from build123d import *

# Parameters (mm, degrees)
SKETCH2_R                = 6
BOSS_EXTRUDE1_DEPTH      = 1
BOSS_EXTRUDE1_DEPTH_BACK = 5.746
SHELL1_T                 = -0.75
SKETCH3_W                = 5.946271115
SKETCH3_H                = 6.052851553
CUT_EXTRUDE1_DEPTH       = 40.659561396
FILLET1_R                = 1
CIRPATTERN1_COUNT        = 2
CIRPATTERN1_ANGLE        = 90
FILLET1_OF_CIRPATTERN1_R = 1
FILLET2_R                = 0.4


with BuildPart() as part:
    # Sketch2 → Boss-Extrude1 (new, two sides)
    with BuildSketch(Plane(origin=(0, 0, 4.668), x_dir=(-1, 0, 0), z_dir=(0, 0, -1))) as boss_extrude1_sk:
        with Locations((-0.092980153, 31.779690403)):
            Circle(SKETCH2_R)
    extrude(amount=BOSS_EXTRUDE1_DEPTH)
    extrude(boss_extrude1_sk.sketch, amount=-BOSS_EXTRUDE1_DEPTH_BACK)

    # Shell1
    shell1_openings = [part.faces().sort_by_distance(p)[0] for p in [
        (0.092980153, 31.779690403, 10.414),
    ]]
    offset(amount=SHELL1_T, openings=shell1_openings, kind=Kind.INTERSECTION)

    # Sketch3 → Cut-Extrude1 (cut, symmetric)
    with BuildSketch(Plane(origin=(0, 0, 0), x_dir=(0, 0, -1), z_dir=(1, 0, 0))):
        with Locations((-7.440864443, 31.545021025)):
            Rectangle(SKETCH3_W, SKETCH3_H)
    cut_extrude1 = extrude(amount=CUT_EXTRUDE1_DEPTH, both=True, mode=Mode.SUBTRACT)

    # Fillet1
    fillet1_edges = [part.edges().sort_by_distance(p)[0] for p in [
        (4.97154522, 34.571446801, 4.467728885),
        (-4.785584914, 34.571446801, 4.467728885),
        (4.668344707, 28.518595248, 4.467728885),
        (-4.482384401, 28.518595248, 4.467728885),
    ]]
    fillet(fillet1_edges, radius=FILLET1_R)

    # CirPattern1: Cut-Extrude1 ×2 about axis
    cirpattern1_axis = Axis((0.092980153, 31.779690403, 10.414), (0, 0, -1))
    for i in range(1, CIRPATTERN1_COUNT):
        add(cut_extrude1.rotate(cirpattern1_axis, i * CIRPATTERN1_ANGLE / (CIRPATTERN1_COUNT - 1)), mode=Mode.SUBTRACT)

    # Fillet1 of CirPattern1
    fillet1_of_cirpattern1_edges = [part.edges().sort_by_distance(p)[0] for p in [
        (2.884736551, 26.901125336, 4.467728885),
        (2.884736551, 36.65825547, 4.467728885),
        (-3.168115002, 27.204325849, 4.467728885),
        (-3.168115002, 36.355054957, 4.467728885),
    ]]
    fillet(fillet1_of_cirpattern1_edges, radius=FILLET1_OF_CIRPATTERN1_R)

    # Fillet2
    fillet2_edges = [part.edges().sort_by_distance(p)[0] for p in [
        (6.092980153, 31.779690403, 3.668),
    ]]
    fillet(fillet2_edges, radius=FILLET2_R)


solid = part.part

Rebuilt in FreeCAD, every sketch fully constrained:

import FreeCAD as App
import Part
import Sketcher
from FreeCAD import Vector


def edges_at(feature, points):
    """Names of the edges that pass closest to the given points."""
    edges = feature.Shape.Edges
    near = lambda p: min(range(len(edges)), key=lambda i: edges[i].distToShape(Part.Vertex(*p))[0])
    return sorted({f"Edge{near(p) + 1}" for p in points})


def faces_at(feature, points):
    """Names of the faces that lie closest to the given points."""
    faces = feature.Shape.Faces
    near = lambda p: min(range(len(faces)), key=lambda i: faces[i].distToShape(Part.Vertex(*p))[0])
    return sorted({f"Face{near(p) + 1}" for p in points})


def add_polygon(sketch, points):
    """Adds a closed chain of lines whose ends are joined by coincident constraints."""
    first, n = sketch.GeometryCount, len(points)
    for a, b in zip(points, points[1:] + points[:1]):
        sketch.addGeometry(Part.LineSegment(App.Vector(*a, 0), App.Vector(*b, 0)), False)
    for i in range(n):
        sketch.addConstraint(Sketcher.Constraint("Coincident", first + i, 2, first + (i + 1) % n, 1))

doc = App.newDocument("Part")
body = doc.addObject("PartDesign::Body", "Body")

# Sketch on XY plane
sketch1 = doc.addObject("Sketcher::SketchObject", "Sketch")
body.addObject(sketch1)
sketch1.AttachmentSupport = (doc.XY_Plane, [""])
sketch1.MapMode = "FlatFace"
sketch1.AttachmentOffset = App.Placement(Vector(0, 0, 4.668), App.Rotation())
sketch1.addGeometry(Part.Circle(Vector(0, 32, 0), Vector(0, 0, 1), 6), False)
sketch1.addConstraint([
    Sketcher.Constraint("Diameter", 0, 12.0),
    Sketcher.Constraint("DistanceX", -1, 1, 0, 3, 0.09298),
    Sketcher.Constraint("DistanceY", -1, 1, 0, 3, 31.77969),
])
pad1 = doc.addObject("PartDesign::Pad", "Pad")
body.addObject(pad1)
pad1.Profile = sketch1
pad1.Type = "TwoLengths"
pad1.Length = 1
pad1.Length2 = 5.746
pad1.Reversed = True
doc.recompute()

thickness = doc.addObject("PartDesign::Thickness", "Thickness")
body.addObject(thickness)
thickness.Base = (pad1, faces_at(pad1, [(0.093, 31.78, 10.414)]))
thickness.Value = 0.75
thickness.Reversed = True
thickness.Join = "Intersection"

# Sketch on YZ plane
sketch2 = doc.addObject("Sketcher::SketchObject", "Sketch001")
body.addObject(sketch2)
sketch2.AttachmentSupport = (doc.YZ_Plane, [""])
sketch2.MapMode = "FlatFace"
add_polygon(sketch2, [(35, 10), (29, 10), (29, 4), (35, 4)])  # lines 0-3
sketch2.addConstraint([
    Sketcher.Constraint("Horizontal", 0),
    Sketcher.Constraint("Vertical", 1),
    Sketcher.Constraint("Horizontal", 2),
    Sketcher.Constraint("Vertical", 3),
    Sketcher.Constraint("DistanceY", -1, 1, 0, 2, 10.414),
    Sketcher.Constraint("DistanceX", 0, 2, 0, 1, 6.052852),
    Sketcher.Constraint("DistanceY", 1, 2, 1, 1, 5.946271),
    Sketcher.Constraint("DistanceX", -1, 1, 0, 2, 28.518595),
])
pocket1 = doc.addObject("PartDesign::Pocket", "Pocket")
body.addObject(pocket1)
pocket1.Profile = sketch2
pocket1.Length = 81.319123
pocket1.Midplane = True
doc.recompute()

fillet = doc.addObject("PartDesign::Fillet", "Fillet")
body.addObject(fillet)
fillet.Base = (pocket1, edges_at(pocket1, [
    (4.972, 34.571, 4.468),
    (-4.786, 34.571, 4.468),
    (4.668, 28.519, 4.468),
    (-4.482, 28.519, 4.468),
]))
fillet.Radius = 1
doc.recompute()

datumline = doc.addObject("PartDesign::Line", "DatumLine")
body.addObject(datumline)
datumline.Placement = App.Placement(Vector(0.09298, 31.77969, 0), App.Rotation(Vector(0, 0, 1), Vector(0, 0, -1)))
polarpattern = doc.addObject("PartDesign::PolarPattern", "PolarPattern")
body.addObject(polarpattern)
polarpattern.Originals = [pocket1]
polarpattern.Axis = (datumline, [""])
polarpattern.Angle = 90
polarpattern.Occurrences = 2
body.Tip = polarpattern
doc.recompute()

fillet2 = doc.addObject("PartDesign::Fillet", "Fillet001")
body.addObject(fillet2)
fillet2.Base = (polarpattern, edges_at(polarpattern, [
    (2.885, 26.901, 4.468),
    (2.885, 36.658, 4.468),
    (-3.168, 27.204, 4.468),
    (-3.168, 36.355, 4.468),
]))
fillet2.Radius = 1
doc.recompute()

fillet3 = doc.addObject("PartDesign::Fillet", "Fillet002")
body.addObject(fillet3)
fillet3.Base = (fillet2, edges_at(fillet2, [(6.093, 31.78, 3.668)]))
fillet3.Radius = 0.4

doc.recompute()
